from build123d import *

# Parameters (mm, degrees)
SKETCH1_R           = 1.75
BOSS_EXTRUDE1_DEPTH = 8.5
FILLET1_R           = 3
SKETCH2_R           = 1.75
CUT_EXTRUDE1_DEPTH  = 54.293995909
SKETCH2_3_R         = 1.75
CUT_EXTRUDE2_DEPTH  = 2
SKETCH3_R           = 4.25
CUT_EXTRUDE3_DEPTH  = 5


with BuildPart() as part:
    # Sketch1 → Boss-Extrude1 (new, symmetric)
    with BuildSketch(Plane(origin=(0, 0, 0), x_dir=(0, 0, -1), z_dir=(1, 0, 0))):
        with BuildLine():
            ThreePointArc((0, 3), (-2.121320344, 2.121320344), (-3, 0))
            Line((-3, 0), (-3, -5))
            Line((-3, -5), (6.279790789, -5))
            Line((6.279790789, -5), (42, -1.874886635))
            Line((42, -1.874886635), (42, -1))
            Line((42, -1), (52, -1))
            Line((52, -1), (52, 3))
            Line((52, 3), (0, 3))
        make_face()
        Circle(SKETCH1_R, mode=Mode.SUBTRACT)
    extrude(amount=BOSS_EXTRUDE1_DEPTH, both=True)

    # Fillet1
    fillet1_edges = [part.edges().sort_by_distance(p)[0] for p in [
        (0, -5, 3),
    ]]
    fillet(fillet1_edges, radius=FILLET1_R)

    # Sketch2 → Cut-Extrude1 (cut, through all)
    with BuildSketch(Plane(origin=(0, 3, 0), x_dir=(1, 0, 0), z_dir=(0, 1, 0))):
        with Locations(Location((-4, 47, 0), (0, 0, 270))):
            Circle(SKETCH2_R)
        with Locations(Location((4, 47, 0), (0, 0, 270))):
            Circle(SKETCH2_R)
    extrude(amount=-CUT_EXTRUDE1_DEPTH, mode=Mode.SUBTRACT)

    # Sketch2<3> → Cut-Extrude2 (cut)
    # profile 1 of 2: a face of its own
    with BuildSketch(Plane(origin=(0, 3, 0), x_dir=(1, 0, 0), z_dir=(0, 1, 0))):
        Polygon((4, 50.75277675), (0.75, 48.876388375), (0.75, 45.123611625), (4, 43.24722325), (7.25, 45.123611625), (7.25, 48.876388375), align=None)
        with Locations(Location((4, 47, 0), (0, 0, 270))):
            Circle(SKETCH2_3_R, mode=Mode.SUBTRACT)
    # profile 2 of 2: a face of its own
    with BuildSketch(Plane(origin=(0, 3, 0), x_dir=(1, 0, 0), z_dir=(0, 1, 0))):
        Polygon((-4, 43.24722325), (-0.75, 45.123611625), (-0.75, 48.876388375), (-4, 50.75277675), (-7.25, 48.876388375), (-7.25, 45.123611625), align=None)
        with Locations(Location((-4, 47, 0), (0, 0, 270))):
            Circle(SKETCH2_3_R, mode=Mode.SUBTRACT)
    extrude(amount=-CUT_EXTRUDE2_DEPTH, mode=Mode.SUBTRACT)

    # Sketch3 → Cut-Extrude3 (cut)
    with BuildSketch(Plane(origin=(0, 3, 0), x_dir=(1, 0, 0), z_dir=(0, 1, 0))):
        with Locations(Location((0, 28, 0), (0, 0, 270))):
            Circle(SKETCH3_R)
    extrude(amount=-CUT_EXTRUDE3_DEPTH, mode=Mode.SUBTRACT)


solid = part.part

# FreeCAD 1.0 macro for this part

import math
import FreeCAD as App
import Part
import Sketcher
from FreeCAD import Vector
Q = App.Units.Quantity


def edges_at(feature, points):
    """Names of the edges that pass closest to the given points."""
    edges = feature.Shape.Edges
    near = lambda p: min(range(len(edges)), key=lambda i: edges[i].distToShape(Part.Vertex(*p))[0])
    return sorted({f"Edge{near(p) + 1}" for p in points})

doc = App.newDocument("Part")
body = doc.addObject("PartDesign::Body", "Body")

sketch1 = doc.addObject("Sketcher::SketchObject", "Sketch")
body.addObject(sketch1)
sketch1.AttachmentSupport = (doc.YZ_Plane, [""])
sketch1.MapMode = "FlatFace"
sketch1.addGeometry([
    Part.ArcOfCircle(Part.Circle(Vector(0, 0, 0), Vector(0, 0, 1), 3), math.radians(0), math.radians(90)),
    Part.LineSegment(Vector(0, 3, 0), Vector(-5, 3, 0)),
    Part.LineSegment(Vector(-5, 3, 0), Vector(-5, -6.3, 0)),
    Part.LineSegment(Vector(-5, -6.3, 0), Vector(-1.9, -42, 0)),
    Part.LineSegment(Vector(-1.9, -42, 0), Vector(-1, -42, 0)),
    Part.LineSegment(Vector(-1, -42, 0), Vector(-1, -52, 0)),
    Part.LineSegment(Vector(-1, -52, 0), Vector(3, -52, 0)),
    Part.LineSegment(Vector(3, -52, 0), Vector(3, 0, 0)),
    Part.Circle(Vector(0, 0, 0), Vector(0, 0, 1), 1.8),
], False)
sketch1.addConstraint([
    Sketcher.Constraint("Tangent", 0, 2, 1, 1),
    Sketcher.Constraint("Coincident", 1, 2, 2, 1),
    Sketcher.Constraint("Coincident", 2, 2, 3, 1),
    Sketcher.Constraint("Coincident", 3, 2, 4, 1),
    Sketcher.Constraint("Coincident", 4, 2, 5, 1),
    Sketcher.Constraint("Coincident", 5, 2, 6, 1),
    Sketcher.Constraint("Coincident", 6, 2, 7, 1),
    Sketcher.Constraint("Tangent", 7, 2, 0, 1),
    Sketcher.Constraint("Horizontal", 1),
    Sketcher.Constraint("Vertical", 2),
    Sketcher.Constraint("Horizontal", 4),
    Sketcher.Constraint("Vertical", 5),
    Sketcher.Constraint("Horizontal", 6),
    Sketcher.Constraint("Vertical", 7),
    Sketcher.Constraint("Coincident", 0, 3, -1, 1),
    Sketcher.Constraint("Coincident", 8, 3, -1, 1),
    Sketcher.Constraint("Radius", 0, 3.0),
    Sketcher.Constraint("Diameter", 8, 3.5),
    Sketcher.Constraint("DistanceX", 1, 2, 1, 1, 5.0),
    Sketcher.Constraint("DistanceX", 6, 1, 6, 2, 4.0),
    Sketcher.Constraint("DistanceY", 5, 2, 5, 1, 10.0),
    Sketcher.Constraint("DistanceY", 7, 1, 7, 2, 52.0),
    Sketcher.Constraint("Angle", 3, Q("-85 deg")),
    Sketcher.Constraint("DistanceY", 2, 2, 2, 1, 9.279791),
])
pad1 = doc.addObject("PartDesign::Pad", "Pad")
body.addObject(pad1)
pad1.Profile = sketch1
pad1.Length = 17
pad1.Midplane = True
doc.recompute()

fillet = doc.addObject("PartDesign::Fillet", "Fillet")
body.addObject(fillet)
fillet.Base = (pad1, edges_at(pad1, [(0, -5, 3)]))
fillet.Radius = 3

sketch2 = doc.addObject("Sketcher::SketchObject", "Sketch001")
body.addObject(sketch2)
sketch2.AttachmentSupport = (doc.XZ_Plane, [""])
sketch2.MapMode = "FlatFace"
sketch2.AttachmentOffset = App.Placement(Vector(0, 0, -3), App.Rotation())
sketch2.addGeometry([
    Part.Circle(Vector(-4, -47, 0), Vector(0, 0, 1), 1.8),
    Part.Circle(Vector(4, -47, 0), Vector(0, 0, 1), 1.8),
], False)
sketch2.addConstraint([
    Sketcher.Constraint("Equal", 0, 1),
    Sketcher.Constraint("Symmetric", 0, 3, 1, 3, -2),
    Sketcher.Constraint("Diameter", 0, 3.5),
    Sketcher.Constraint("DistanceX", 0, 3, -1, 1, 4.0),
    Sketcher.Constraint("DistanceY", 0, 3, -1, 1, 47.0),
])
pocket1 = doc.addObject("PartDesign::Pocket", "Pocket")
body.addObject(pocket1)
pocket1.Profile = sketch2
pocket1.Type = "ThroughAll"
pocket1.Reversed = True

sketch3 = doc.addObject("Sketcher::SketchObject", "Sketch002")
body.addObject(sketch3)
sketch3.AttachmentSupport = (doc.XZ_Plane, [""])
sketch3.MapMode = "FlatFace"
sketch3.AttachmentOffset = App.Placement(Vector(0, 0, -3), App.Rotation())
sketch3.addGeometry([
    Part.LineSegment(Vector(4, -50.8, 0), Vector(0.8, -48.9, 0)),
    Part.LineSegment(Vector(0.8, -48.9, 0), Vector(0.8, -45.1, 0)),
    Part.LineSegment(Vector(0.8, -45.1, 0), Vector(4, -43.2, 0)),
    Part.LineSegment(Vector(4, -43.2, 0), Vector(7.2, -45.1, 0)),
    Part.LineSegment(Vector(7.2, -45.1, 0), Vector(7.2, -48.9, 0)),
    Part.LineSegment(Vector(7.2, -48.9, 0), Vector(4, -50.8, 0)),
    Part.Circle(Vector(4, -47, 0), Vector(0, 0, 1), 1.8),
    Part.LineSegment(Vector(-4, -43.2, 0), Vector(-0.8, -45.1, 0)),
    Part.LineSegment(Vector(-0.8, -45.1, 0), Vector(-0.8, -48.9, 0)),
    Part.LineSegment(Vector(-0.8, -48.9, 0), Vector(-4, -50.8, 0)),
    Part.LineSegment(Vector(-4, -50.8, 0), Vector(-7.2, -48.9, 0)),
    Part.LineSegment(Vector(-7.2, -48.9, 0), Vector(-7.2, -45.1, 0)),
    Part.LineSegment(Vector(-7.2, -45.1, 0), Vector(-4, -43.2, 0)),
    Part.Circle(Vector(-4, -47, 0), Vector(0, 0, 1), 1.8),
], False)
sketch3.addConstraint([
    Sketcher.Constraint("Coincident", 0, 2, 1, 1),
    Sketcher.Constraint("Coincident", 1, 2, 2, 1),
    Sketcher.Constraint("Coincident", 2, 2, 3, 1),
    Sketcher.Constraint("Coincident", 3, 2, 4, 1),
    Sketcher.Constraint("Coincident", 4, 2, 5, 1),
    Sketcher.Constraint("Coincident", 5, 2, 0, 1),
    Sketcher.Constraint("Coincident", 7, 2, 8, 1),
    Sketcher.Constraint("Coincident", 8, 2, 9, 1),
    Sketcher.Constraint("Coincident", 9, 2, 10, 1),
    Sketcher.Constraint("Coincident", 10, 2, 11, 1),
    Sketcher.Constraint("Coincident", 11, 2, 12, 1),
    Sketcher.Constraint("Coincident", 12, 2, 7, 1),
    Sketcher.Constraint("Vertical", 1),
    Sketcher.Constraint("Vertical", 4),
    Sketcher.Constraint("Vertical", 8),
    Sketcher.Constraint("Vertical", 11),
    Sketcher.Constraint("Equal", 6, 13),
    Sketcher.Constraint("Symmetric", 6, 3, 13, 3, -2),
    Sketcher.Constraint("Symmetric", 1, 2, 7, 2, -2),
    Sketcher.Constraint("Symmetric", 5, 2, 9, 2, -2),
    Sketcher.Constraint("Symmetric", 4, 2, 10, 2, -2),
    Sketcher.Constraint("Symmetric", 2, 2, 12, 2, -2),
    Sketcher.Constraint("Parallel", 0, 3),
    Sketcher.Constraint("Parallel", 2, 5),
    Sketcher.Constraint("Parallel", 3, 7),
    Sketcher.Constraint("Parallel", 5, 9),
    Sketcher.Constraint("Parallel", 9, 12),
    Sketcher.Constraint("Horizontal", 1, 2, 3, 2),
    Sketcher.Constraint("Horizontal", 0, 2, 4, 2),
    Sketcher.Constraint("Vertical", 6, 3, 2, 2),
    Sketcher.Constraint("Diameter", 6, 3.5),
    Sketcher.Constraint("Angle", 0, Q("150 deg")),
    Sketcher.Constraint("DistanceX", -1, 1, 6, 3, 4.0),
    Sketcher.Constraint("DistanceY", 6, 3, -1, 1, 47.0),
    Sketcher.Constraint("DistanceX", 1, 2, 3, 2, 6.5),
    Sketcher.Constraint("DistanceY", 1, 1, 1, 2, 3.752777),
    Sketcher.Constraint("DistanceY", 0, 2, -1, 1, 48.876388),
])
pocket2 = doc.addObject("PartDesign::Pocket", "Pocket001")
body.addObject(pocket2)
pocket2.Profile = sketch3
pocket2.Length = 2
pocket2.Reversed = True

sketch4 = doc.addObject("Sketcher::SketchObject", "Sketch003")
body.addObject(sketch4)
sketch4.AttachmentSupport = (doc.XZ_Plane, [""])
sketch4.MapMode = "FlatFace"
sketch4.AttachmentOffset = App.Placement(Vector(0, 0, -3), App.Rotation())
sketch4.addGeometry(Part.Circle(Vector(0, -28, 0), Vector(0, 0, 1), 4.2), False)
sketch4.addConstraint([
    Sketcher.Constraint("PointOnObject", 0, 3, -2),
    Sketcher.Constraint("Diameter", 0, 8.5),
    Sketcher.Constraint("DistanceY", 0, 3, -1, 1, 28.0),
])
pocket3 = doc.addObject("PartDesign::Pocket", "Pocket002")
body.addObject(pocket3)
pocket3.Profile = sketch4
pocket3.Length = 5
pocket3.Reversed = True

doc.recompute()
